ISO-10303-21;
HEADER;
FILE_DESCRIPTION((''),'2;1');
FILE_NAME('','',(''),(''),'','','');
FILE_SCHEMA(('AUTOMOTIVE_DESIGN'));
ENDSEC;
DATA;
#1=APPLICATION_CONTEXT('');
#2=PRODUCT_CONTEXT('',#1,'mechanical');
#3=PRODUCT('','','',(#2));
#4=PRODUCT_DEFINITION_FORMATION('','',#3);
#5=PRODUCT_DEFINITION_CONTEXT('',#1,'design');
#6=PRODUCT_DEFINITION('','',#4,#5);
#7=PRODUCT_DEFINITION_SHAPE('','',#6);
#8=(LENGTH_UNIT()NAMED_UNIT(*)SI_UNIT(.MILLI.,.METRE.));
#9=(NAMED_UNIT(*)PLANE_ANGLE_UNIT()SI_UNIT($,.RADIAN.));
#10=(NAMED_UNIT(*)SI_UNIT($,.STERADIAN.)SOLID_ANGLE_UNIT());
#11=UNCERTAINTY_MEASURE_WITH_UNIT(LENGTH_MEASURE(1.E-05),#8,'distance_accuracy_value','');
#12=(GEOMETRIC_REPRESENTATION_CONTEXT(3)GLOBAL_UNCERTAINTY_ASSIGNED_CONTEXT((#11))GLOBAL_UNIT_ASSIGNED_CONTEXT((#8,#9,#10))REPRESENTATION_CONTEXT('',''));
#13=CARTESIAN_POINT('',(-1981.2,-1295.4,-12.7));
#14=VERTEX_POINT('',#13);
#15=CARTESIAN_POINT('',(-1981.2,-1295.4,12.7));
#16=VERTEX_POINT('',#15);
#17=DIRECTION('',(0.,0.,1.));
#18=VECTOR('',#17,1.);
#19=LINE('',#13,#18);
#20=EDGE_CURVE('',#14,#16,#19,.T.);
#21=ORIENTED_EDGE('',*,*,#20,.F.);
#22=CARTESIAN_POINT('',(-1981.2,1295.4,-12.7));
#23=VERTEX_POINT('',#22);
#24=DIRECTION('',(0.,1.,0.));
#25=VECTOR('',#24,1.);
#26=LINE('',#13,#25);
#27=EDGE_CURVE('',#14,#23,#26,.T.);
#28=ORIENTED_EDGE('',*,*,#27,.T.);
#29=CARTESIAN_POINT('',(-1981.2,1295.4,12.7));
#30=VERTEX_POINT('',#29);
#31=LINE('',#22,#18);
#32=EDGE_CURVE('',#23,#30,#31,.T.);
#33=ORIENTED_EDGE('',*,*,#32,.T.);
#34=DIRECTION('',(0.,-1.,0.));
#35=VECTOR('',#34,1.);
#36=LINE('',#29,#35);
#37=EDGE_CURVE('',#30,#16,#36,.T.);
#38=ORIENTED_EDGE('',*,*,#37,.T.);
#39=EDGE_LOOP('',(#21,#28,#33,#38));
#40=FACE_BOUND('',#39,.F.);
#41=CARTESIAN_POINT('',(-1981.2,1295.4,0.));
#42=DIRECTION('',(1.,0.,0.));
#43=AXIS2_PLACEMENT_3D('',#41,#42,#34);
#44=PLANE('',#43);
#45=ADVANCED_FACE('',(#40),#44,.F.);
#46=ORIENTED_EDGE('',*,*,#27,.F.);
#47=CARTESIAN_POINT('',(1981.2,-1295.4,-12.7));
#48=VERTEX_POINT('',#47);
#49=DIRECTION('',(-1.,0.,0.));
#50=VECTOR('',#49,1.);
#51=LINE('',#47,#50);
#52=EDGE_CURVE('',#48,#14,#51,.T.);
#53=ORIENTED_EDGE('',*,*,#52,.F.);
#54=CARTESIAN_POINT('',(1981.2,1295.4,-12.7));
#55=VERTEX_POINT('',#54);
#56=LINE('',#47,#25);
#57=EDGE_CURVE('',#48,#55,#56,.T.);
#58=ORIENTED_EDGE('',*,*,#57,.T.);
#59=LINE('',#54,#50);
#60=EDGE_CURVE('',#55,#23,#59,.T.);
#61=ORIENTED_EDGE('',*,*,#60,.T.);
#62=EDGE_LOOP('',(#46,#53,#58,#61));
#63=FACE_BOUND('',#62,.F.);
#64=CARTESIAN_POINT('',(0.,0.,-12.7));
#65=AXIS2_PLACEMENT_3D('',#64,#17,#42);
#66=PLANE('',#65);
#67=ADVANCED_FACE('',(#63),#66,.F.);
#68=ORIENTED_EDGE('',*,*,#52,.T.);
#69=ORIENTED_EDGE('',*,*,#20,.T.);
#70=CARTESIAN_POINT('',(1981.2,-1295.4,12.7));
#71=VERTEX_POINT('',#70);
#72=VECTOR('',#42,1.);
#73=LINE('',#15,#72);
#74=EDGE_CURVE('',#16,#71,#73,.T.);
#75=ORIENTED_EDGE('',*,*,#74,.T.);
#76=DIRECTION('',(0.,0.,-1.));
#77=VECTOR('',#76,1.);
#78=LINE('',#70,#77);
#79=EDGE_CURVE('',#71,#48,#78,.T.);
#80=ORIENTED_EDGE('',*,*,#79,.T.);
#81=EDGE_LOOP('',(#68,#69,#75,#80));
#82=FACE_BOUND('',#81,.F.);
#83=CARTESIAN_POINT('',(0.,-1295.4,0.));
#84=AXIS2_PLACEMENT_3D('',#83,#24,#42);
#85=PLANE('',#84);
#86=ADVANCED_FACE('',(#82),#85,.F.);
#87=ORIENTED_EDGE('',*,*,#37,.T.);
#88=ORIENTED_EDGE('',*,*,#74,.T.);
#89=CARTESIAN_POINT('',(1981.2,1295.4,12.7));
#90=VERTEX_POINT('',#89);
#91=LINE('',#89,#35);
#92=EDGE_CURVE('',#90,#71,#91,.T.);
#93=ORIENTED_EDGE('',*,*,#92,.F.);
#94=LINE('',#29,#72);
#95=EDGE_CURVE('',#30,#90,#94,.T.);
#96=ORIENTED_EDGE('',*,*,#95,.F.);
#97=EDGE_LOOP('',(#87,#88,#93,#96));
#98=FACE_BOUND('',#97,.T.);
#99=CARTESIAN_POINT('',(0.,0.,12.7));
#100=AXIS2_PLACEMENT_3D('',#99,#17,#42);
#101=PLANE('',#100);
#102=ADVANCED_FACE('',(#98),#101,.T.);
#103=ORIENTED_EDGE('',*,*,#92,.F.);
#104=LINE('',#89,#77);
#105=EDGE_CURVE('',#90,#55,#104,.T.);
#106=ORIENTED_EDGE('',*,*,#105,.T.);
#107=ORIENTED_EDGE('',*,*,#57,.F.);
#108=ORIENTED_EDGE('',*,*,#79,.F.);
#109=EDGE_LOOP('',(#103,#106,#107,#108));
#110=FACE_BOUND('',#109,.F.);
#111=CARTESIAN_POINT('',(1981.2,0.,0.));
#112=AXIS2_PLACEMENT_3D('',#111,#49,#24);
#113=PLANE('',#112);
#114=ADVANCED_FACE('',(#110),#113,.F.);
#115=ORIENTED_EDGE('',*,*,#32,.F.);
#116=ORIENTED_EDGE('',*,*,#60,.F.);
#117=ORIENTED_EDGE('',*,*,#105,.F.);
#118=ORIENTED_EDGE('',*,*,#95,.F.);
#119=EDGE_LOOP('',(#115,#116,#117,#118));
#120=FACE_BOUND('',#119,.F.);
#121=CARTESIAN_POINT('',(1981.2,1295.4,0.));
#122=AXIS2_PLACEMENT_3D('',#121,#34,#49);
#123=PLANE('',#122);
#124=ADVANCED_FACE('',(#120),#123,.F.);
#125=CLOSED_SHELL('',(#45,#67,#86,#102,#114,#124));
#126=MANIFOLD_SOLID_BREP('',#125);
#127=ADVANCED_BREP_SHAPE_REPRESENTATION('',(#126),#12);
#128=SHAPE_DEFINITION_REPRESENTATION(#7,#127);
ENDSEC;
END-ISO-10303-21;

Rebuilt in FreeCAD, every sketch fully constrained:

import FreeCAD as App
import Part
import Sketcher
Q = App.Units.Quantity


def add_polygon(sketch, points):
    """Adds a closed chain of lines whose ends are joined by coincident constraints."""
    first, n = sketch.GeometryCount, len(points)
    for a, b in zip(points, points[1:] + points[:1]):
        sketch.addGeometry(Part.LineSegment(App.Vector(*a, 0), App.Vector(*b, 0)), False)
    for i in range(n):
        sketch.addConstraint(Sketcher.Constraint("Coincident", first + i, 2, first + (i + 1) % n, 1))

doc = App.newDocument("Part")
body = doc.addObject("PartDesign::Body", "Body")

# Sketch on XY plane
sketch1 = doc.addObject("Sketcher::SketchObject", "Sketch")
body.addObject(sketch1)
sketch1.AttachmentSupport = (doc.XY_Plane, [""])
sketch1.MapMode = "FlatFace"
add_polygon(sketch1, [(1981.2, 1295.4), (-1981.2, 1295.4), (-1981.2, -1295.4), (1981.2, -1295.4)])  # lines 0-3
sketch1.addConstraint([
    Sketcher.Constraint("Horizontal", 0),
    Sketcher.Constraint("Vertical", 1),
    Sketcher.Constraint("Horizontal", 2),
    Sketcher.Constraint("Vertical", 3),
    Sketcher.Constraint("Symmetric", 0, 2, 2, 2, -1, 1),
    Sketcher.Constraint("DistanceX", 0, 2, 0, 1, Q("156 in")),
    Sketcher.Constraint("DistanceY", 1, 2, 1, 1, Q("102 in")),
])
pad1 = doc.addObject("PartDesign::Pad", "Pad")
body.addObject(pad1)
pad1.Profile = sketch1
pad1.Length = Q("1 in")
pad1.Midplane = True

doc.recompute()
